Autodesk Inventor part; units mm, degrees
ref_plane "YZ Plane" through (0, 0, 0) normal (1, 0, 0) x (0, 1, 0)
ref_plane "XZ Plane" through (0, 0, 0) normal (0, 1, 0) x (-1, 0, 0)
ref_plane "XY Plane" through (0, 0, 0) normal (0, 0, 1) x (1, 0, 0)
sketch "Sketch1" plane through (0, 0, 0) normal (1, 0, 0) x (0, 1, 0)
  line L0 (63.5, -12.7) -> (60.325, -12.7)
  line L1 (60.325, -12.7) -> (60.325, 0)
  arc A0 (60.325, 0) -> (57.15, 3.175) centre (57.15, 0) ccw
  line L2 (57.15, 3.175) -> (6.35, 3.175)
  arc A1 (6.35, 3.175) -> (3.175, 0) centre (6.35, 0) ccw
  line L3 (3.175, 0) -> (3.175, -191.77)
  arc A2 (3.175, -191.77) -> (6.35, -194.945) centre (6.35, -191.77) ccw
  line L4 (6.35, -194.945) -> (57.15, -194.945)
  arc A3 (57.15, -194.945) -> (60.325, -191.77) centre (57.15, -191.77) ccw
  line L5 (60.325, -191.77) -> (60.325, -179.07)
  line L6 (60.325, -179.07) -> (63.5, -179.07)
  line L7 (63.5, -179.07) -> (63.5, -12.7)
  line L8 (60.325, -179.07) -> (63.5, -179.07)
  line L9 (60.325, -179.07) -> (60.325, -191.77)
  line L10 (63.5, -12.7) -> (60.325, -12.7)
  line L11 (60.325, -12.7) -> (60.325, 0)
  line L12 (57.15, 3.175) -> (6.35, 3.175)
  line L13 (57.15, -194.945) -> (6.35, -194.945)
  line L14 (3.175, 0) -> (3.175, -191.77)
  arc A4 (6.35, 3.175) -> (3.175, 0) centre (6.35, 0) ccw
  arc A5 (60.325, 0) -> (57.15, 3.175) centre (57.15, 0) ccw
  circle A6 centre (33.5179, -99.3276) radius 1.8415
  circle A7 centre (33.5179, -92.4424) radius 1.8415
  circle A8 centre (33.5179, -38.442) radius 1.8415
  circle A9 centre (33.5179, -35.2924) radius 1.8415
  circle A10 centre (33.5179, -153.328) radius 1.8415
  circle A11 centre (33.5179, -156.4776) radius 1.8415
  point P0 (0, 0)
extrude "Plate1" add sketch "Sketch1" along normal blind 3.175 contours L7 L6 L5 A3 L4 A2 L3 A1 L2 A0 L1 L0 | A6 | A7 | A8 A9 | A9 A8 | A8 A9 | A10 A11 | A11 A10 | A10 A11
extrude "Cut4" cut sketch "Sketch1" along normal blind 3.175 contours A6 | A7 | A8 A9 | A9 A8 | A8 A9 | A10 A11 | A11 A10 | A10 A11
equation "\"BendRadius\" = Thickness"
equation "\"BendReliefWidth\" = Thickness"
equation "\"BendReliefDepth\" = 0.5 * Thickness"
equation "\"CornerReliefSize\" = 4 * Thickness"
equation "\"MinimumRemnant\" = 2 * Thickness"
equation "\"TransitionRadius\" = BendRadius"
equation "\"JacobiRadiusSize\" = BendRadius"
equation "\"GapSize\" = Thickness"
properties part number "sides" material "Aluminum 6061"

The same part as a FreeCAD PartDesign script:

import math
import FreeCAD as App
import Part
import Sketcher
from FreeCAD import Vector
Q = App.Units.Quantity

doc = App.newDocument("Part")
body = doc.addObject("PartDesign::Body", "Body")

sketch1 = doc.addObject("Sketcher::SketchObject", "Sketch")
body.addObject(sketch1)
sketch1.AttachmentSupport = (doc.YZ_Plane, [""])
sketch1.MapMode = "FlatFace"
sketch1.addGeometry([
    Part.LineSegment(Vector(63.5, -179.1, 0), Vector(63.5, -12.7, 0)),
    Part.LineSegment(Vector(63.5, -12.7, 0), Vector(60.3, -12.7, 0)),
    Part.LineSegment(Vector(60.3, -12.7, 0), Vector(60.3, 0, 0)),
    Part.ArcOfCircle(Part.Circle(Vector(57.1, 0, 0), Vector(0, 0, 1), 3.2), math.radians(0), math.radians(90)),
    Part.LineSegment(Vector(57.1, 3.2, 0), Vector(6.3, 3.2, 0)),
    Part.ArcOfCircle(Part.Circle(Vector(6.3, 0, 0), Vector(0, 0, 1), 3.2), math.radians(90), math.radians(180)),
    Part.LineSegment(Vector(3.2, 0, 0), Vector(3.2, -191.8, 0)),
    Part.ArcOfCircle(Part.Circle(Vector(6.3, -191.8, 0), Vector(0, 0, 1), 3.2), math.radians(180), math.radians(270)),
    Part.LineSegment(Vector(6.3, -194.9, 0), Vector(57.1, -194.9, 0)),
    Part.ArcOfCircle(Part.Circle(Vector(57.1, -191.8, 0), Vector(0, 0, 1), 3.2), math.radians(-90), math.radians(0)),
    Part.LineSegment(Vector(60.3, -191.8, 0), Vector(60.3, -179.1, 0)),
    Part.LineSegment(Vector(60.3, -179.1, 0), Vector(63.5, -179.1, 0)),
], False)
sketch1.addConstraint([
    Sketcher.Constraint("Coincident", 0, 2, 1, 1),
    Sketcher.Constraint("Coincident", 1, 2, 2, 1),
    Sketcher.Constraint("Tangent", 2, 2, 3, 1),
    Sketcher.Constraint("Tangent", 3, 2, 4, 1),
    Sketcher.Constraint("Tangent", 4, 2, 5, 1),
    Sketcher.Constraint("Tangent", 5, 2, 6, 1),
    Sketcher.Constraint("Tangent", 6, 2, 7, 1),
    Sketcher.Constraint("Tangent", 7, 2, 8, 1),
    Sketcher.Constraint("Tangent", 8, 2, 9, 1),
    Sketcher.Constraint("Tangent", 9, 2, 10, 1),
    Sketcher.Constraint("Coincident", 10, 2, 11, 1),
    Sketcher.Constraint("Coincident", 11, 2, 0, 1),
    Sketcher.Constraint("Vertical", 0),
    Sketcher.Constraint("Horizontal", 1),
    Sketcher.Constraint("Vertical", 2),
    Sketcher.Constraint("Horizontal", 4),
    Sketcher.Constraint("Vertical", 6),
    Sketcher.Constraint("Horizontal", 8),
    Sketcher.Constraint("Vertical", 10),
    Sketcher.Constraint("Horizontal", 11),
    Sketcher.Constraint("Equal", 3, 5),
    Sketcher.Constraint("Equal", 5, 7),
    Sketcher.Constraint("Equal", 7, 9),
    Sketcher.Constraint("PointOnObject", 3, 3, -1),
    Sketcher.Constraint("Vertical", 3, 3, 9, 3),
    Sketcher.Constraint("Equal", 2, 10),
    Sketcher.Constraint("DistanceX", 4, 2, 4, 1, Q("2 in")),
    Sketcher.Constraint("DistanceY", 2, 1, 2, 2, Q("0.5 in")),
    Sketcher.Constraint("Radius", 3, Q("0.125 in")),
    Sketcher.Constraint("DistanceY", 0, 1, 0, 2, Q("6.55 in")),
    Sketcher.Constraint("DistanceX", -1, 1, 0, 2, Q("2.5 in")),
    Sketcher.Constraint("DistanceX", 1, 2, 1, 1, Q("0.125 in")),
])
pad1 = doc.addObject("PartDesign::Pad", "Pad")
body.addObject(pad1)
pad1.Profile = sketch1
pad1.Length = Q("0.125 in")

sketch2 = doc.addObject("Sketcher::SketchObject", "Sketch001")
body.addObject(sketch2)
sketch2.AttachmentSupport = (doc.YZ_Plane, [""])
sketch2.MapMode = "FlatFace"
sketch2.addGeometry([
    Part.Circle(Vector(33.5, -99.3, 0), Vector(0, 0, 1), 1.8),
    Part.Circle(Vector(33.5, -92.4, 0), Vector(0, 0, 1), 1.8),
    Part.ArcOfCircle(Part.Circle(Vector(33.5, -38.4, 0), Vector(0, 0, 1), 1.8), math.radians(121), math.radians(419)),
    Part.ArcOfCircle(Part.Circle(Vector(33.5, -35.3, 0), Vector(0, 0, 1), 1.8), math.radians(-59), math.radians(239)),
    Part.ArcOfCircle(Part.Circle(Vector(33.5, -153.3, 0), Vector(0, 0, 1), 1.8), math.radians(-59), math.radians(239)),
    Part.ArcOfCircle(Part.Circle(Vector(33.5, -156.5, 0), Vector(0, 0, 1), 1.8), math.radians(121), math.radians(419)),
], False)
sketch2.addConstraint([
    Sketcher.Constraint("Coincident", 2, 1, 3, 2),
    Sketcher.Constraint("Coincident", 3, 1, 2, 2),
    Sketcher.Constraint("Coincident", 4, 1, 5, 2),
    Sketcher.Constraint("Coincident", 5, 1, 4, 2),
    Sketcher.Constraint("Equal", 0, 1),
    Sketcher.Constraint("Equal", 1, 2),
    Sketcher.Constraint("Equal", 2, 3),
    Sketcher.Constraint("Equal", 3, 4),
    Sketcher.Constraint("Equal", 4, 5),
    Sketcher.Constraint("Horizontal", 2, 1, 3, 1),
    Sketcher.Constraint("Horizontal", 4, 1, 5, 1),
    Sketcher.Constraint("Vertical", 0, 3, 1, 3),
    Sketcher.Constraint("Vertical", 1, 3, 2, 3),
    Sketcher.Constraint("Vertical", 3, 3, 4, 3),
    Sketcher.Constraint("Vertical", 3, 1, 4, 1),
    Sketcher.Constraint("Diameter", 0, Q("0.145 in")),
    Sketcher.Constraint("DistanceY", 1, 3, 3, 3, Q("2.25 in")),
    Sketcher.Constraint("DistanceY", 5, 3, 0, 3, Q("2.25 in")),
    Sketcher.Constraint("DistanceY", 1, 3, 2, 3, Q("2.126 in")),
    Sketcher.Constraint("DistanceX", -1, 1, 0, 3, Q("1.3196 in")),
    Sketcher.Constraint("DistanceY", 0, 3, -1, 1, 99.3276),
    Sketcher.Constraint("DistanceY", 1, 3, -1, 1, 92.4424),
])
pocket1 = doc.addObject("PartDesign::Pocket", "Pocket")
body.addObject(pocket1)
pocket1.Profile = sketch2
pocket1.Length = Q("0.125 in")
pocket1.Reversed = True

doc.recompute()
